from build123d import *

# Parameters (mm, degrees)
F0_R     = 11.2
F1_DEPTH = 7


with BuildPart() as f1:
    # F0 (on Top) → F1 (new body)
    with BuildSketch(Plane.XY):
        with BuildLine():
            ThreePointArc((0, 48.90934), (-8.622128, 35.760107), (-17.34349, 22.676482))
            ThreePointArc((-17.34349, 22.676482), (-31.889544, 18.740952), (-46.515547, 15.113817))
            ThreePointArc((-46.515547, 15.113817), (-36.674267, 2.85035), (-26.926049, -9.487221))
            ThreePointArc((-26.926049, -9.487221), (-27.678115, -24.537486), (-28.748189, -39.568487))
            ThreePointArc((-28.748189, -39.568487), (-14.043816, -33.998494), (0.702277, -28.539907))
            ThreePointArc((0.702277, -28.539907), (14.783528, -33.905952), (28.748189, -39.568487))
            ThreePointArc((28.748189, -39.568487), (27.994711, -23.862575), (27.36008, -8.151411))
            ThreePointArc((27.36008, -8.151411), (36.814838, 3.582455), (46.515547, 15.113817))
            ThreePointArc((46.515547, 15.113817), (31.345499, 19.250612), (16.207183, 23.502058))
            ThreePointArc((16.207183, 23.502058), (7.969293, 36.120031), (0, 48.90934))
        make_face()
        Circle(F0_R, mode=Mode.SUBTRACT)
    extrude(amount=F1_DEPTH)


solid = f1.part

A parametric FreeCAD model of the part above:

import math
import FreeCAD as App
import Part
import Sketcher
from FreeCAD import Vector
Q = App.Units.Quantity

doc = App.newDocument("Part")
body = doc.addObject("PartDesign::Body", "Body")

# Sketch on XY plane
sketch1 = body.newObject("Sketcher::SketchObject", "Sketch")
sketch1.AttachmentSupport = (doc.getObject("XY_Plane"), [""])
sketch1.MapMode = "FlatFace"
sketch1.addGeometry(Part.ArcOfCircle(Part.Circle(Vector(-1742.327502, 1181.975354, 0), Vector(0, 0, 1), 2078.351201), math.radians(-33.903609), math.radians(-33.036653)), False)
sketch1.addGeometry(Part.ArcOfCircle(Part.Circle(Vector(-210.753677, 708.687511, 0), Vector(0, 0, 1), 712.754258), math.radians(-76.677763), math.radians(-74.255024)), False)
sketch1.addGeometry(Part.ArcOfCircle(Part.Circle(Vector(-1662.526008, -1291.794999, 0), Vector(0, 0, 1), 2078.340795), math.radians(38.09639), math.radians(38.96335)), False)
sketch1.addGeometry(Part.ArcOfCircle(Part.Circle(Vector(-739.125248, 18.557651, 0), Vector(0, 0, 1), 712.751159), math.radians(-4.677769), math.radians(-2.255019)), False)
sketch1.addGeometry(Part.ArcOfCircle(Part.Circle(Vector(714.823358, -1980.348606, 0), Vector(0, 0, 1), 2078.346967), math.radians(110.096389), math.radians(110.963347)), False)
sketch1.addGeometry(Part.ArcOfCircle(Part.Circle(Vector(-246.052449, -697.217354, 0), Vector(0, 0, 1), 712.753409), math.radians(67.322236), math.radians(69.744978)), False)
sketch1.addGeometry(Part.ArcOfCircle(Part.Circle(Vector(2104.291211, 67.874984, 0), Vector(0, 0, 1), 2078.322144), math.radians(-177.903615), math.radians(-177.036647)), False)
sketch1.addGeometry(Part.ArcOfCircle(Part.Circle(Vector(587.058114, -449.461329, 0), Vector(0, 0, 1), 712.752645), math.radians(139.322233), math.radians(141.744977)), False)
sketch1.addGeometry(Part.ArcOfCircle(Part.Circle(Vector(585.7171, 2022.304202, 0), Vector(0, 0, 1), 2078.353088), math.radians(-105.90361), math.radians(-105.036654)), False)
sketch1.addGeometry(Part.ArcOfCircle(Part.Circle(Vector(608.872248, 419.433135, 0), Vector(0, 0, 1), 712.750515), math.radians(-148.677768), math.radians(-146.255017)), False)
sketch1.addGeometry(Part.Circle(Vector(0, 0, 0), Vector(0, 0, 1), 11.2), False)
sketch1.addConstraint(Sketcher.Constraint("Coincident", 0, 1, 1, 2))
sketch1.addConstraint(Sketcher.Constraint("Coincident", 1, 1, 2, 2))
sketch1.addConstraint(Sketcher.Constraint("Coincident", 2, 1, 3, 2))
sketch1.addConstraint(Sketcher.Constraint("Coincident", 3, 1, 4, 2))
sketch1.addConstraint(Sketcher.Constraint("Coincident", 4, 1, 5, 2))
sketch1.addConstraint(Sketcher.Constraint("Coincident", 5, 1, 6, 2))
sketch1.addConstraint(Sketcher.Constraint("Coincident", 6, 1, 7, 2))
sketch1.addConstraint(Sketcher.Constraint("Coincident", 7, 1, 8, 2))
sketch1.addConstraint(Sketcher.Constraint("Coincident", 8, 1, 9, 2))
sketch1.addConstraint(Sketcher.Constraint("Coincident", 9, 1, 0, 2))
sketch1.addConstraint(Sketcher.Constraint("Coincident", 10, 3, -1, 1))
sketch1.addConstraint(Sketcher.Constraint("Symmetric", 3, 1, 5, 1, -2))
sketch1.addConstraint(Sketcher.Constraint("Symmetric", 1, 1, 7, 1, -2))
sketch1.addConstraint(Sketcher.Constraint("PointOnObject", 9, 1, -2))
sketch1.addConstraint(Sketcher.Constraint("Diameter", 10, Q("22.4 mm")))
sketch1.addConstraint(Sketcher.Constraint("Radius", 0, Q("2078.351201 mm")))
sketch1.addConstraint(Sketcher.Constraint("Radius", 1, Q("712.754258 mm")))
sketch1.addConstraint(Sketcher.Constraint("Radius", 3, Q("712.751159 mm")))
sketch1.addConstraint(Sketcher.Constraint("Radius", 5, Q("712.753409 mm")))
sketch1.addConstraint(Sketcher.Constraint("DistanceY", 2, 3, -1, 1, Q("1291.794999 mm")))
sketch1.addConstraint(Sketcher.Constraint("Radius", 2, Q("2078.340795 mm")))
sketch1.addConstraint(Sketcher.Constraint("Radius", 4, Q("2078.346967 mm")))
sketch1.addConstraint(Sketcher.Constraint("Radius", 6, Q("2078.322144 mm")))
sketch1.addConstraint(Sketcher.Constraint("Radius", 7, Q("712.752645 mm")))
sketch1.addConstraint(Sketcher.Constraint("Radius", 8, Q("2078.353088 mm")))
sketch1.addConstraint(Sketcher.Constraint("Radius", 9, Q("712.750515 mm")))
sketch1.addConstraint(Sketcher.Constraint("DistanceX", 0, 3, -1, 1, Q("1742.327502 mm")))
sketch1.addConstraint(Sketcher.Constraint("DistanceX", -1, 1, 8, 3, Q("585.7171 mm")))
sketch1.addConstraint(Sketcher.Constraint("DistanceX", 3, 3, 5, 3, Q("493.072799 mm")))
sketch1.addConstraint(Sketcher.Constraint("DistanceY", -1, 1, 1, 3, Q("708.687511 mm")))
sketch1.addConstraint(Sketcher.Constraint("DistanceX", 3, 3, -1, 1, Q("739.125248 mm")))
sketch1.addConstraint(Sketcher.Constraint("DistanceY", -1, 1, 3, 3, Q("18.557651 mm")))
sketch1.addConstraint(Sketcher.Constraint("DistanceX", -1, 1, 4, 3, Q("714.823358 mm")))
sketch1.addConstraint(Sketcher.Constraint("DistanceX", -1, 1, 6, 3, Q("2104.291211 mm")))
sketch1.addConstraint(Sketcher.Constraint("DistanceY", 7, 3, -1, 1, Q("449.461329 mm")))
sketch1.addConstraint(Sketcher.Constraint("DistanceX", 2, 3, 1, 3, Q("1451.772331 mm")))
sketch1.addConstraint(Sketcher.Constraint("DistanceX", 3, 3, 1, 3, Q("528.371571 mm")))
sketch1.addConstraint(Sketcher.Constraint("DistanceY", 4, 3, 0, 3, Q("3162.32396 mm")))
sketch1.addConstraint(Sketcher.Constraint("DistanceY", 5, 3, 6, 3, Q("765.092338 mm")))
sketch1.addConstraint(Sketcher.Constraint("DistanceY", 5, 3, 9, 3, Q("1116.650489 mm")))
pad1 = body.newObject("PartDesign::Pad", "Pad")
pad1.Profile = sketch1
pad1.Length = 7

doc.recompute()
